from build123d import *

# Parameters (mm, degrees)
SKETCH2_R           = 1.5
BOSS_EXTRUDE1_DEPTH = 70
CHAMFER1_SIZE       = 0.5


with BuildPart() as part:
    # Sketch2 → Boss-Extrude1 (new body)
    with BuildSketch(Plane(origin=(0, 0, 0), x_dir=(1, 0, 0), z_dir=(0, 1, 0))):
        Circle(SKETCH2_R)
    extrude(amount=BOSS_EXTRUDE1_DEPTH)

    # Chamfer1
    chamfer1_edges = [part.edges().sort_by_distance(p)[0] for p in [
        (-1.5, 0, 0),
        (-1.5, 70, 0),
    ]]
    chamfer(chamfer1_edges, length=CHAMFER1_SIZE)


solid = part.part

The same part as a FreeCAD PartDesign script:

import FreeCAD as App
import Part
import Sketcher
from FreeCAD import Vector


def edges_at(feature, points):
    """Names of the edges that pass closest to the given points."""
    edges = feature.Shape.Edges
    near = lambda p: min(range(len(edges)), key=lambda i: edges[i].distToShape(Part.Vertex(*p))[0])
    return sorted({f"Edge{near(p) + 1}" for p in points})

doc = App.newDocument("Part")
body = doc.addObject("PartDesign::Body", "Body")

# Sketch on XZ plane
sketch1 = body.newObject("Sketcher::SketchObject", "Sketch")
sketch1.AttachmentSupport = (doc.getObject("XZ_Plane"), [""])
sketch1.MapMode = "FlatFace"
sketch1.addGeometry(Part.Circle(Vector(0, 0, 0), Vector(0, 0, 1), 1.5), False)
sketch1.addConstraint(Sketcher.Constraint("Coincident", 0, 3, -1, 1))
sketch1.addConstraint(Sketcher.Constraint("Diameter", 0, 3.0))
pad1 = body.newObject("PartDesign::Pad", "Pad")
pad1.Profile = sketch1
pad1.Length = 70
pad1.Reversed = True
doc.recompute()

chamfer = body.newObject("PartDesign::Chamfer", "Chamfer")
chamfer.Base = (pad1, edges_at(pad1, [(-1.5, 0, 0), (-1.5, 70, 0)]))
chamfer.Size = 0.5

doc.recompute()
